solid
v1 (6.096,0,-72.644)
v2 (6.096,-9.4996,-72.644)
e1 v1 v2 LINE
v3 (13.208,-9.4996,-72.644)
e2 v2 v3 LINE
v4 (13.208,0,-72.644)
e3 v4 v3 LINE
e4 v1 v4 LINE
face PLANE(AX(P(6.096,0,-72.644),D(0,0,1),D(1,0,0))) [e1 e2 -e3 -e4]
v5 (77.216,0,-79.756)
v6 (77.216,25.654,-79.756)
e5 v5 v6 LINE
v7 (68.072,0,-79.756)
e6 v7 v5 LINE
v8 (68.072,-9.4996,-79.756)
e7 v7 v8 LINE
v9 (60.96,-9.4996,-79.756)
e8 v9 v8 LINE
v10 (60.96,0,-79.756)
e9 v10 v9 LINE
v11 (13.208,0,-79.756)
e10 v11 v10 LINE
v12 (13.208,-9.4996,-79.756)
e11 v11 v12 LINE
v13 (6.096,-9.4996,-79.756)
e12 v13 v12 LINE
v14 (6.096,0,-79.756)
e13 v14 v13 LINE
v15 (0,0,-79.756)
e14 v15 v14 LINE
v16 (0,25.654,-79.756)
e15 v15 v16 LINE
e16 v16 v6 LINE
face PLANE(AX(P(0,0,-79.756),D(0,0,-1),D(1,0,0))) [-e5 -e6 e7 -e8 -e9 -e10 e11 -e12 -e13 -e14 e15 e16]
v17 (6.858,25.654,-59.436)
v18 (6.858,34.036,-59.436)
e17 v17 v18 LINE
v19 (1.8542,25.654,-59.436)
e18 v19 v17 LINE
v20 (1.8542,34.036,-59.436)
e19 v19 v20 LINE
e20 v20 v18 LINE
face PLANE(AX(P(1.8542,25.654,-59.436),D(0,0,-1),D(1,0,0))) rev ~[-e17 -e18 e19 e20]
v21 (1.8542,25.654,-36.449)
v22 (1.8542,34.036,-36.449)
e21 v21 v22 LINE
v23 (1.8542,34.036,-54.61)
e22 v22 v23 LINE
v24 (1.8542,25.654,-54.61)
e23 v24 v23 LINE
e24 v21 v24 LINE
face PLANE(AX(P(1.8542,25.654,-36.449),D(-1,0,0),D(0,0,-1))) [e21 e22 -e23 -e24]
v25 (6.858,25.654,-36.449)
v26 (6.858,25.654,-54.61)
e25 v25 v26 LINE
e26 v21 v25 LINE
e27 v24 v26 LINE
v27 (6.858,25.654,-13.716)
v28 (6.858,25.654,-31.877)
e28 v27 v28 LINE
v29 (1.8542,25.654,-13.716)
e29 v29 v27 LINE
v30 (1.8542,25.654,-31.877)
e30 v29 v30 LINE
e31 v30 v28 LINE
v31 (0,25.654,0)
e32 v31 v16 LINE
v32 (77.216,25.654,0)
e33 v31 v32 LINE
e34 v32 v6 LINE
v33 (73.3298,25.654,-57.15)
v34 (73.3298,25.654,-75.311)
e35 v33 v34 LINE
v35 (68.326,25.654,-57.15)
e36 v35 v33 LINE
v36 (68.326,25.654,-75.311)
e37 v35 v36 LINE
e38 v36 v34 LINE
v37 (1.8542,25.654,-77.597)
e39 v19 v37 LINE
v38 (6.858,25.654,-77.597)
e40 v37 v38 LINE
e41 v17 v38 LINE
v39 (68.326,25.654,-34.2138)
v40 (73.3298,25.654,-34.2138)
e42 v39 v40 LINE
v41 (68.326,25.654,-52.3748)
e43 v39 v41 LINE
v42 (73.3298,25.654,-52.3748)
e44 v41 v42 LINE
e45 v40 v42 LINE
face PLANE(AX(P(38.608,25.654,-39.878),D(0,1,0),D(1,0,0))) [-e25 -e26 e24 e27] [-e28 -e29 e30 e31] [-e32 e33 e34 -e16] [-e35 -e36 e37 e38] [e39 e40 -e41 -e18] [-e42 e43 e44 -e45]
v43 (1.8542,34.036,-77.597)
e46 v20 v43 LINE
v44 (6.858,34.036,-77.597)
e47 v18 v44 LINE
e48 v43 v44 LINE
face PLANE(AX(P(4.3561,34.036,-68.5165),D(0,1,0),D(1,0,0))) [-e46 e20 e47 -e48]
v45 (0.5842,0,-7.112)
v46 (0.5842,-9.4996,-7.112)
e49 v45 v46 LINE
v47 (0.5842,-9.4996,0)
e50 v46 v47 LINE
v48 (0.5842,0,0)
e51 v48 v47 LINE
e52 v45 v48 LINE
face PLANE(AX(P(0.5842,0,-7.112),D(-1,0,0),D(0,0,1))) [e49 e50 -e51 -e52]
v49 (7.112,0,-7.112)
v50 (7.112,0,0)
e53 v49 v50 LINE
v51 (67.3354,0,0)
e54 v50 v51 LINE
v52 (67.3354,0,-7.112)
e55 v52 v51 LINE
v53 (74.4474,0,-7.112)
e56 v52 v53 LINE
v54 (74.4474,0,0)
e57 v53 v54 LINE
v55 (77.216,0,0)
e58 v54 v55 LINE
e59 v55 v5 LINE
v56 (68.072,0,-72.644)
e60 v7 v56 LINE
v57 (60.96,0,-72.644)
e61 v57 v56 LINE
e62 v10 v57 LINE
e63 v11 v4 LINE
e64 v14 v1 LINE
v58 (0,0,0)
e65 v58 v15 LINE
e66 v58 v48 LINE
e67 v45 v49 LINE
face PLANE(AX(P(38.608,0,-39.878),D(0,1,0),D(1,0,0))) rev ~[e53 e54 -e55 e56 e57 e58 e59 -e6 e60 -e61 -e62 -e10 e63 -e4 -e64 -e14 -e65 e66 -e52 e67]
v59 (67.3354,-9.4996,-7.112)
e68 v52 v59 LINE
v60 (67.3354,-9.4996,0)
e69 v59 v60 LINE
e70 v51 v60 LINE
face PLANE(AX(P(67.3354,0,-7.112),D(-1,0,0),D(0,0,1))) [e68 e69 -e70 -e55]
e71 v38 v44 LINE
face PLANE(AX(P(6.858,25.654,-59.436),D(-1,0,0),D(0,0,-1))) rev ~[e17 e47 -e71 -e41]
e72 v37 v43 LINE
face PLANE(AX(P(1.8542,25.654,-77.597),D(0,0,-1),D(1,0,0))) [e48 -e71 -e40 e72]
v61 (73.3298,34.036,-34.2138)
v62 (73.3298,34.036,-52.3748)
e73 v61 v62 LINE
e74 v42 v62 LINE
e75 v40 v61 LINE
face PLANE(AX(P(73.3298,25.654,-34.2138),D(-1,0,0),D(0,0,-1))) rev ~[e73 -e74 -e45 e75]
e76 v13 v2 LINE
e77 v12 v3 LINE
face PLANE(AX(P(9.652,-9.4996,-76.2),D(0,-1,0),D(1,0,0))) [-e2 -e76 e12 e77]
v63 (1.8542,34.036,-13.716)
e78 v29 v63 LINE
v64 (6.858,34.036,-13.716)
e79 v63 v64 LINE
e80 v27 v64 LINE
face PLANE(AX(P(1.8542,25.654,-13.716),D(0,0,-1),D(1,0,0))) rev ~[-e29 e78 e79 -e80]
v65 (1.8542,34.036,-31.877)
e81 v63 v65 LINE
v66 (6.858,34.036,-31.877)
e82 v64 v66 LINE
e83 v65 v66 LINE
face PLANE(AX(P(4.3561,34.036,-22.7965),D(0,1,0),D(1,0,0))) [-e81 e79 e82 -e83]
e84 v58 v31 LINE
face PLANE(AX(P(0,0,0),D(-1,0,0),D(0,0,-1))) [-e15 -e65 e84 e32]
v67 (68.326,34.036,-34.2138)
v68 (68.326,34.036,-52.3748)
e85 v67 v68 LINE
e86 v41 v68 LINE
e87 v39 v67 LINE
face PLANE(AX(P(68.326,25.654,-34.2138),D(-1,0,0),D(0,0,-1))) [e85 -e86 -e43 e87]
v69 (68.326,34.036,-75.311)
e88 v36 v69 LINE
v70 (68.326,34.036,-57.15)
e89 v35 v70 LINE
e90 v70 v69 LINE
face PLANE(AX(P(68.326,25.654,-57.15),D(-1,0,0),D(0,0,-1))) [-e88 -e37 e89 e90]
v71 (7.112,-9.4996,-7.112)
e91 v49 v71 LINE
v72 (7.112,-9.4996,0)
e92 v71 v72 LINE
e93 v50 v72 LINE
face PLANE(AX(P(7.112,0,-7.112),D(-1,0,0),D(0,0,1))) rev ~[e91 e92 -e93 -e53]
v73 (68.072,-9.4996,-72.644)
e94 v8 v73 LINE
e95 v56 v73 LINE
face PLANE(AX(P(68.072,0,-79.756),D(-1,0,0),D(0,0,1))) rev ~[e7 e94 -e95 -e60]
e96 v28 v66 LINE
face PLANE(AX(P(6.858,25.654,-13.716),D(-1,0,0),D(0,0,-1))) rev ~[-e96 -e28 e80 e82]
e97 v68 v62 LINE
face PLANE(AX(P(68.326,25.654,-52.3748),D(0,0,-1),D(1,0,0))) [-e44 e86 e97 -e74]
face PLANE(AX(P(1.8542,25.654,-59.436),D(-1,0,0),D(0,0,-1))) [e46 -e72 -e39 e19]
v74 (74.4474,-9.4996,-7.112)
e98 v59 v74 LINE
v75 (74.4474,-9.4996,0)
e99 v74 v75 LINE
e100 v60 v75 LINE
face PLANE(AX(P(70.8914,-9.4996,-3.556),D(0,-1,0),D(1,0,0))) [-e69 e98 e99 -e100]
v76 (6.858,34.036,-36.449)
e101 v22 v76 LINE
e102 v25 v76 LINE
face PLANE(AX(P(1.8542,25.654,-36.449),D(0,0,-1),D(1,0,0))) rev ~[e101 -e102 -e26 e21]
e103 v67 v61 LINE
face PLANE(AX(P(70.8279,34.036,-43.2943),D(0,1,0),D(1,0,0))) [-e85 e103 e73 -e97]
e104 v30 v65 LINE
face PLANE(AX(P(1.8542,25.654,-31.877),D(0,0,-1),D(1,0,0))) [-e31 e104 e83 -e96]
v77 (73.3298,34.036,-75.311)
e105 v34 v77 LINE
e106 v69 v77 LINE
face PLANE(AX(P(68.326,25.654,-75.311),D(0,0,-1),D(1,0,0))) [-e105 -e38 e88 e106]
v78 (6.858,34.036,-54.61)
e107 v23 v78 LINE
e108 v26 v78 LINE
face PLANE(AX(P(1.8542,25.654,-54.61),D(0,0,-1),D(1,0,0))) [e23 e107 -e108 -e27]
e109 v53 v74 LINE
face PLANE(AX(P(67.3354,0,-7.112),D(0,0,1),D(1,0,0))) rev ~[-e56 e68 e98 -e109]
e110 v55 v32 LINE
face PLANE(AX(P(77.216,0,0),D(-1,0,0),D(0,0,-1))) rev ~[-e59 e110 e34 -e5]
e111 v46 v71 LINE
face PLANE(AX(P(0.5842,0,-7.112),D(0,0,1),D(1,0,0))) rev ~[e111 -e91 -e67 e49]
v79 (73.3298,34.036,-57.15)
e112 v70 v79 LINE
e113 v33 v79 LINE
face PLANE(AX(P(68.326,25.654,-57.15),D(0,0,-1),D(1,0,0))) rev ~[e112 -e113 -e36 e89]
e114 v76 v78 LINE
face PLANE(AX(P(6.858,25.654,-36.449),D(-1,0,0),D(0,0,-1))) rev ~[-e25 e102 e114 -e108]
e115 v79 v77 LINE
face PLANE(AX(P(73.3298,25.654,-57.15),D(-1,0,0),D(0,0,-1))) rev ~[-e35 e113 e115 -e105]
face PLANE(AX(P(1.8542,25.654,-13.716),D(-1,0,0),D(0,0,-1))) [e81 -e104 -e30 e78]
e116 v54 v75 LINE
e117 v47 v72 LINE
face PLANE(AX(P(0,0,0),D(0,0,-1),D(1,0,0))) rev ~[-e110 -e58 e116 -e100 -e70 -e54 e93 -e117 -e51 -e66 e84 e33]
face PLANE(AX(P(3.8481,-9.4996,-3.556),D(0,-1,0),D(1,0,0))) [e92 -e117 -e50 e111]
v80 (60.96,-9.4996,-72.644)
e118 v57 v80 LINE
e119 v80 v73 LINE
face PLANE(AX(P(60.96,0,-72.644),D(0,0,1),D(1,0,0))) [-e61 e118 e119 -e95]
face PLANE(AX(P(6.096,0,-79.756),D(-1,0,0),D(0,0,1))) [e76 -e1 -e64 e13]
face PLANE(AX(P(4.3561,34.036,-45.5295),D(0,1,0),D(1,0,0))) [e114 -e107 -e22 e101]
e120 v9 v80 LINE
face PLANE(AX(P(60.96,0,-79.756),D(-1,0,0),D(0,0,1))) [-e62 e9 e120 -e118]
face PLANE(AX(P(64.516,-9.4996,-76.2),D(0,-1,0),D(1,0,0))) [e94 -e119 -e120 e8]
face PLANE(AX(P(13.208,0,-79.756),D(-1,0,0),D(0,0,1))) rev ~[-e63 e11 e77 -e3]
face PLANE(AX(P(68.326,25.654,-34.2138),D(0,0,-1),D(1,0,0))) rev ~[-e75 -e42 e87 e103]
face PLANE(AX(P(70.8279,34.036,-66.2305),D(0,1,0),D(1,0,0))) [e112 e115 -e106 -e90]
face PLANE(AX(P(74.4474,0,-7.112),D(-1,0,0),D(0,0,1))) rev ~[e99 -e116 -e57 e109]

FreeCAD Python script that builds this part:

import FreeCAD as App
import Part
import Sketcher

V = App.Vector
Q = App.Units.Quantity


def add_polygon(sketch, points):
    """Adds a closed chain of lines whose ends are joined by coincident constraints."""
    first, n = sketch.GeometryCount, len(points)
    for a, b in zip(points, points[1:] + points[:1]):
        sketch.addGeometry(Part.LineSegment(App.Vector(*a, 0), App.Vector(*b, 0)), False)
    for i in range(n):
        sketch.addConstraint(Sketcher.Constraint("Coincident", first + i, 2, first + (i + 1) % n, 1))

doc = App.newDocument("Part")
params = doc.addObject("Spreadsheet::Sheet", "Params")
for row, (alias, value) in enumerate([
    ("sketch1_width", "3.04 in"),
    ("sketch1_height", "3.14 in"),
    ("pad1_length", "1.01 in"),
    ("sketch2_width", "0.197 in"),
    ("sketch2_height", "0.715 in"),
    ("pad2_length", "0.33 in"),
    ("sketch3_width", "0.28 in"),
    ("sketch3_width2", "0.257 in"),
    ("pad3_length", "0.374 in"),
], start=1):
    params.set(f"A{row}", alias)
    params.set(f"B{row}", "=" + value)
    params.setAlias(f"B{row}", alias)

body = doc.addObject("PartDesign::Body", "Body")

# Sketch on XZ plane
sketch1 = body.newObject("Sketcher::SketchObject", "Sketch")
sketch1.AttachmentSupport = (doc.getObject("XZ_Plane"), [""])
sketch1.MapMode = "FlatFace"
add_polygon(sketch1, [(0, -80), (0, 0), (77, 0), (77, -80)])  # lines 0-3
sketch1.addConstraint(Sketcher.Constraint("Vertical", 0))
sketch1.addConstraint(Sketcher.Constraint("Horizontal", 1))
sketch1.addConstraint(Sketcher.Constraint("Vertical", 2))
sketch1.addConstraint(Sketcher.Constraint("Horizontal", 3))
sketch1.addConstraint(Sketcher.Constraint("Coincident", 0, 2, -1, 1))
sketch1.addConstraint(Sketcher.Constraint("DistanceX", 1, 1, 1, 2, Q("3.04 in")))
sketch1.addConstraint(Sketcher.Constraint("DistanceY", 0, 1, 0, 2, Q("3.14 in")))
sketch1.setExpression("Constraints[9]", "Params.sketch1_width")
sketch1.setExpression("Constraints[10]", "Params.sketch1_height")
pad1 = body.newObject("PartDesign::Pad", "Pad")
pad1.Profile = sketch1
pad1.setExpression("Length", "Params.pad1_length")
pad1.Reversed = True

# Sketch on XZ plane
sketch2 = body.newObject("Sketcher::SketchObject", "Sketch001")
sketch2.AttachmentSupport = (doc.getObject("XZ_Plane"), [""])
sketch2.MapMode = "FlatFace"
sketch2.AttachmentOffset = App.Placement(V(0, 0, -1.01 * 25.4), App.Rotation())
add_polygon(sketch2, [(2, -78), (2, -59), (7, -59), (7, -78)])  # lines 0-3
add_polygon(sketch2, [(2, -55), (2, -36), (7, -36), (7, -55)])  # lines 4-7
add_polygon(sketch2, [(2, -32), (2, -14), (7, -14), (7, -32)])  # lines 8-11
add_polygon(sketch2, [(68, -75), (68, -57), (73, -57), (73, -75)])  # lines 12-15
add_polygon(sketch2, [(68, -52), (68, -34), (73, -34), (73, -52)])  # lines 16-19
sketch2.addConstraint(Sketcher.Constraint("Vertical", 0))
sketch2.addConstraint(Sketcher.Constraint("Horizontal", 1))
sketch2.addConstraint(Sketcher.Constraint("Vertical", 2))
sketch2.addConstraint(Sketcher.Constraint("Horizontal", 3))
sketch2.addConstraint(Sketcher.Constraint("Vertical", 4))
sketch2.addConstraint(Sketcher.Constraint("Horizontal", 5))
sketch2.addConstraint(Sketcher.Constraint("Vertical", 6))
sketch2.addConstraint(Sketcher.Constraint("Horizontal", 7))
sketch2.addConstraint(Sketcher.Constraint("Vertical", 8))
sketch2.addConstraint(Sketcher.Constraint("Horizontal", 9))
sketch2.addConstraint(Sketcher.Constraint("Vertical", 10))
sketch2.addConstraint(Sketcher.Constraint("Horizontal", 11))
sketch2.addConstraint(Sketcher.Constraint("Vertical", 12))
sketch2.addConstraint(Sketcher.Constraint("Horizontal", 13))
sketch2.addConstraint(Sketcher.Constraint("Vertical", 14))
sketch2.addConstraint(Sketcher.Constraint("Horizontal", 15))
sketch2.addConstraint(Sketcher.Constraint("Vertical", 16))
sketch2.addConstraint(Sketcher.Constraint("Horizontal", 17))
sketch2.addConstraint(Sketcher.Constraint("Vertical", 18))
sketch2.addConstraint(Sketcher.Constraint("Horizontal", 19))
sketch2.addConstraint(Sketcher.Constraint("Vertical", 3, 2, 4, 2))
sketch2.addConstraint(Sketcher.Constraint("Vertical", 2, 2, 5, 2))
sketch2.addConstraint(Sketcher.Constraint("Vertical", 7, 2, 8, 2))
sketch2.addConstraint(Sketcher.Constraint("Vertical", 6, 2, 9, 2))
sketch2.addConstraint(Sketcher.Constraint("Vertical", 15, 2, 16, 2))
sketch2.addConstraint(Sketcher.Constraint("Vertical", 14, 2, 17, 2))
sketch2.addConstraint(Sketcher.Constraint("Equal", 11, 13))
sketch2.addConstraint(Sketcher.Constraint("Equal", 2, 4))
sketch2.addConstraint(Sketcher.Constraint("Equal", 6, 8))
sketch2.addConstraint(Sketcher.Constraint("Equal", 10, 12))
sketch2.addConstraint(Sketcher.Constraint("Equal", 14, 16))
sketch2.addConstraint(Sketcher.Constraint("DistanceY", 0, 2, 8, 2, Q("1.8 in")))
sketch2.addConstraint(Sketcher.Constraint("DistanceY", 12, 2, 6, 2, Q("0.1 in")))
sketch2.addConstraint(Sketcher.Constraint("DistanceX", 1, 1, 1, 2, Q("0.197 in")))
sketch2.addConstraint(Sketcher.Constraint("DistanceY", 0, 1, 0, 2, Q("0.715 in")))
sketch2.addConstraint(Sketcher.Constraint("DistanceY", 0, 2, -1, 1, Q("2.34 in")))
sketch2.addConstraint(Sketcher.Constraint("DistanceX", -1, 1, 1, 2, Q("0.27 in")))
sketch2.addConstraint(Sketcher.Constraint("DistanceY", 6, 2, -1, 1, Q("2.15 in")))
sketch2.addConstraint(Sketcher.Constraint("DistanceX", -1, 1, 12, 2, Q("2.69 in")))
sketch2.addConstraint(Sketcher.Constraint("DistanceY", 16, 2, -1, 1, Q("1.347 in")))
sketch2.setExpression("Constraints[53]", "Params.sketch2_width")
sketch2.setExpression("Constraints[54]", "Params.sketch2_height")
pad2 = body.newObject("PartDesign::Pad", "Pad001")
pad2.Profile = sketch2
pad2.setExpression("Length", "Params.pad2_length")
pad2.Reversed = True

# Sketch on XZ plane
sketch3 = body.newObject("Sketcher::SketchObject", "Sketch002")
sketch3.AttachmentSupport = (doc.getObject("XZ_Plane"), [""])
sketch3.MapMode = "FlatFace"
add_polygon(sketch3, [(61, -73), (61, -80), (68, -80), (68, -73)])  # lines 0-3
add_polygon(sketch3, [(6, -73), (6, -80), (13, -80), (13, -73)])  # lines 4-7
add_polygon(sketch3, [(1, 0), (1, -7), (7, -7), (7, 0)])  # lines 8-11
add_polygon(sketch3, [(67, 0), (67, -7), (74, -7), (74, 0)])  # lines 12-15
sketch3.addConstraint(Sketcher.Constraint("Vertical", 0))
sketch3.addConstraint(Sketcher.Constraint("Horizontal", 1))
sketch3.addConstraint(Sketcher.Constraint("Vertical", 2))
sketch3.addConstraint(Sketcher.Constraint("Horizontal", 3))
sketch3.addConstraint(Sketcher.Constraint("Vertical", 4))
sketch3.addConstraint(Sketcher.Constraint("Horizontal", 5))
sketch3.addConstraint(Sketcher.Constraint("Vertical", 6))
sketch3.addConstraint(Sketcher.Constraint("Horizontal", 7))
sketch3.addConstraint(Sketcher.Constraint("Vertical", 8))
sketch3.addConstraint(Sketcher.Constraint("Horizontal", 9))
sketch3.addConstraint(Sketcher.Constraint("Vertical", 10))
sketch3.addConstraint(Sketcher.Constraint("Horizontal", 11))
sketch3.addConstraint(Sketcher.Constraint("Vertical", 12))
sketch3.addConstraint(Sketcher.Constraint("Horizontal", 13))
sketch3.addConstraint(Sketcher.Constraint("Vertical", 14))
sketch3.addConstraint(Sketcher.Constraint("Horizontal", 15))
sketch3.addConstraint(Sketcher.Constraint("PointOnObject", 10, 2, -1))
sketch3.addConstraint(Sketcher.Constraint("PointOnObject", 14, 2, -1))
sketch3.addConstraint(Sketcher.Constraint("Horizontal", 1, 2, 4, 2))
sketch3.addConstraint(Sketcher.Constraint("Horizontal", 3, 2, 6, 2))
sketch3.addConstraint(Sketcher.Constraint("Horizontal", 9, 2, 12, 2))
sketch3.addConstraint(Sketcher.Constraint("Equal", 3, 5))
sketch3.addConstraint(Sketcher.Constraint("Equal", 7, 13))
sketch3.addConstraint(Sketcher.Constraint("Equal", 15, 0))
sketch3.addConstraint(Sketcher.Constraint("Equal", 6, 8))
sketch3.addConstraint(Sketcher.Constraint("DistanceX", 1, 1, 1, 2, Q("0.28 in")))
sketch3.addConstraint(Sketcher.Constraint("DistanceX", -1, 1, 0, 2, Q("2.4 in")))
sketch3.addConstraint(Sketcher.Constraint("DistanceX", 9, 1, 9, 2, Q("0.257 in")))
sketch3.addConstraint(Sketcher.Constraint("DistanceY", 0, 2, -1, 1, Q("3.14 in")))
sketch3.addConstraint(Sketcher.Constraint("DistanceX", -1, 1, 4, 2, Q("0.24 in")))
sketch3.addConstraint(Sketcher.Constraint("DistanceX", -1, 1, 9, 2, Q("0.28 in")))
sketch3.addConstraint(Sketcher.Constraint("DistanceX", -1, 1, 12, 2, Q("2.651 in")))
sketch3.setExpression("Constraints[41]", "Params.sketch3_width")
sketch3.setExpression("Constraints[43]", "Params.sketch3_width2")
pad3 = body.newObject("PartDesign::Pad", "Pad002")
pad3.Profile = sketch3
pad3.setExpression("Length", "Params.pad3_length")

doc.recompute()
